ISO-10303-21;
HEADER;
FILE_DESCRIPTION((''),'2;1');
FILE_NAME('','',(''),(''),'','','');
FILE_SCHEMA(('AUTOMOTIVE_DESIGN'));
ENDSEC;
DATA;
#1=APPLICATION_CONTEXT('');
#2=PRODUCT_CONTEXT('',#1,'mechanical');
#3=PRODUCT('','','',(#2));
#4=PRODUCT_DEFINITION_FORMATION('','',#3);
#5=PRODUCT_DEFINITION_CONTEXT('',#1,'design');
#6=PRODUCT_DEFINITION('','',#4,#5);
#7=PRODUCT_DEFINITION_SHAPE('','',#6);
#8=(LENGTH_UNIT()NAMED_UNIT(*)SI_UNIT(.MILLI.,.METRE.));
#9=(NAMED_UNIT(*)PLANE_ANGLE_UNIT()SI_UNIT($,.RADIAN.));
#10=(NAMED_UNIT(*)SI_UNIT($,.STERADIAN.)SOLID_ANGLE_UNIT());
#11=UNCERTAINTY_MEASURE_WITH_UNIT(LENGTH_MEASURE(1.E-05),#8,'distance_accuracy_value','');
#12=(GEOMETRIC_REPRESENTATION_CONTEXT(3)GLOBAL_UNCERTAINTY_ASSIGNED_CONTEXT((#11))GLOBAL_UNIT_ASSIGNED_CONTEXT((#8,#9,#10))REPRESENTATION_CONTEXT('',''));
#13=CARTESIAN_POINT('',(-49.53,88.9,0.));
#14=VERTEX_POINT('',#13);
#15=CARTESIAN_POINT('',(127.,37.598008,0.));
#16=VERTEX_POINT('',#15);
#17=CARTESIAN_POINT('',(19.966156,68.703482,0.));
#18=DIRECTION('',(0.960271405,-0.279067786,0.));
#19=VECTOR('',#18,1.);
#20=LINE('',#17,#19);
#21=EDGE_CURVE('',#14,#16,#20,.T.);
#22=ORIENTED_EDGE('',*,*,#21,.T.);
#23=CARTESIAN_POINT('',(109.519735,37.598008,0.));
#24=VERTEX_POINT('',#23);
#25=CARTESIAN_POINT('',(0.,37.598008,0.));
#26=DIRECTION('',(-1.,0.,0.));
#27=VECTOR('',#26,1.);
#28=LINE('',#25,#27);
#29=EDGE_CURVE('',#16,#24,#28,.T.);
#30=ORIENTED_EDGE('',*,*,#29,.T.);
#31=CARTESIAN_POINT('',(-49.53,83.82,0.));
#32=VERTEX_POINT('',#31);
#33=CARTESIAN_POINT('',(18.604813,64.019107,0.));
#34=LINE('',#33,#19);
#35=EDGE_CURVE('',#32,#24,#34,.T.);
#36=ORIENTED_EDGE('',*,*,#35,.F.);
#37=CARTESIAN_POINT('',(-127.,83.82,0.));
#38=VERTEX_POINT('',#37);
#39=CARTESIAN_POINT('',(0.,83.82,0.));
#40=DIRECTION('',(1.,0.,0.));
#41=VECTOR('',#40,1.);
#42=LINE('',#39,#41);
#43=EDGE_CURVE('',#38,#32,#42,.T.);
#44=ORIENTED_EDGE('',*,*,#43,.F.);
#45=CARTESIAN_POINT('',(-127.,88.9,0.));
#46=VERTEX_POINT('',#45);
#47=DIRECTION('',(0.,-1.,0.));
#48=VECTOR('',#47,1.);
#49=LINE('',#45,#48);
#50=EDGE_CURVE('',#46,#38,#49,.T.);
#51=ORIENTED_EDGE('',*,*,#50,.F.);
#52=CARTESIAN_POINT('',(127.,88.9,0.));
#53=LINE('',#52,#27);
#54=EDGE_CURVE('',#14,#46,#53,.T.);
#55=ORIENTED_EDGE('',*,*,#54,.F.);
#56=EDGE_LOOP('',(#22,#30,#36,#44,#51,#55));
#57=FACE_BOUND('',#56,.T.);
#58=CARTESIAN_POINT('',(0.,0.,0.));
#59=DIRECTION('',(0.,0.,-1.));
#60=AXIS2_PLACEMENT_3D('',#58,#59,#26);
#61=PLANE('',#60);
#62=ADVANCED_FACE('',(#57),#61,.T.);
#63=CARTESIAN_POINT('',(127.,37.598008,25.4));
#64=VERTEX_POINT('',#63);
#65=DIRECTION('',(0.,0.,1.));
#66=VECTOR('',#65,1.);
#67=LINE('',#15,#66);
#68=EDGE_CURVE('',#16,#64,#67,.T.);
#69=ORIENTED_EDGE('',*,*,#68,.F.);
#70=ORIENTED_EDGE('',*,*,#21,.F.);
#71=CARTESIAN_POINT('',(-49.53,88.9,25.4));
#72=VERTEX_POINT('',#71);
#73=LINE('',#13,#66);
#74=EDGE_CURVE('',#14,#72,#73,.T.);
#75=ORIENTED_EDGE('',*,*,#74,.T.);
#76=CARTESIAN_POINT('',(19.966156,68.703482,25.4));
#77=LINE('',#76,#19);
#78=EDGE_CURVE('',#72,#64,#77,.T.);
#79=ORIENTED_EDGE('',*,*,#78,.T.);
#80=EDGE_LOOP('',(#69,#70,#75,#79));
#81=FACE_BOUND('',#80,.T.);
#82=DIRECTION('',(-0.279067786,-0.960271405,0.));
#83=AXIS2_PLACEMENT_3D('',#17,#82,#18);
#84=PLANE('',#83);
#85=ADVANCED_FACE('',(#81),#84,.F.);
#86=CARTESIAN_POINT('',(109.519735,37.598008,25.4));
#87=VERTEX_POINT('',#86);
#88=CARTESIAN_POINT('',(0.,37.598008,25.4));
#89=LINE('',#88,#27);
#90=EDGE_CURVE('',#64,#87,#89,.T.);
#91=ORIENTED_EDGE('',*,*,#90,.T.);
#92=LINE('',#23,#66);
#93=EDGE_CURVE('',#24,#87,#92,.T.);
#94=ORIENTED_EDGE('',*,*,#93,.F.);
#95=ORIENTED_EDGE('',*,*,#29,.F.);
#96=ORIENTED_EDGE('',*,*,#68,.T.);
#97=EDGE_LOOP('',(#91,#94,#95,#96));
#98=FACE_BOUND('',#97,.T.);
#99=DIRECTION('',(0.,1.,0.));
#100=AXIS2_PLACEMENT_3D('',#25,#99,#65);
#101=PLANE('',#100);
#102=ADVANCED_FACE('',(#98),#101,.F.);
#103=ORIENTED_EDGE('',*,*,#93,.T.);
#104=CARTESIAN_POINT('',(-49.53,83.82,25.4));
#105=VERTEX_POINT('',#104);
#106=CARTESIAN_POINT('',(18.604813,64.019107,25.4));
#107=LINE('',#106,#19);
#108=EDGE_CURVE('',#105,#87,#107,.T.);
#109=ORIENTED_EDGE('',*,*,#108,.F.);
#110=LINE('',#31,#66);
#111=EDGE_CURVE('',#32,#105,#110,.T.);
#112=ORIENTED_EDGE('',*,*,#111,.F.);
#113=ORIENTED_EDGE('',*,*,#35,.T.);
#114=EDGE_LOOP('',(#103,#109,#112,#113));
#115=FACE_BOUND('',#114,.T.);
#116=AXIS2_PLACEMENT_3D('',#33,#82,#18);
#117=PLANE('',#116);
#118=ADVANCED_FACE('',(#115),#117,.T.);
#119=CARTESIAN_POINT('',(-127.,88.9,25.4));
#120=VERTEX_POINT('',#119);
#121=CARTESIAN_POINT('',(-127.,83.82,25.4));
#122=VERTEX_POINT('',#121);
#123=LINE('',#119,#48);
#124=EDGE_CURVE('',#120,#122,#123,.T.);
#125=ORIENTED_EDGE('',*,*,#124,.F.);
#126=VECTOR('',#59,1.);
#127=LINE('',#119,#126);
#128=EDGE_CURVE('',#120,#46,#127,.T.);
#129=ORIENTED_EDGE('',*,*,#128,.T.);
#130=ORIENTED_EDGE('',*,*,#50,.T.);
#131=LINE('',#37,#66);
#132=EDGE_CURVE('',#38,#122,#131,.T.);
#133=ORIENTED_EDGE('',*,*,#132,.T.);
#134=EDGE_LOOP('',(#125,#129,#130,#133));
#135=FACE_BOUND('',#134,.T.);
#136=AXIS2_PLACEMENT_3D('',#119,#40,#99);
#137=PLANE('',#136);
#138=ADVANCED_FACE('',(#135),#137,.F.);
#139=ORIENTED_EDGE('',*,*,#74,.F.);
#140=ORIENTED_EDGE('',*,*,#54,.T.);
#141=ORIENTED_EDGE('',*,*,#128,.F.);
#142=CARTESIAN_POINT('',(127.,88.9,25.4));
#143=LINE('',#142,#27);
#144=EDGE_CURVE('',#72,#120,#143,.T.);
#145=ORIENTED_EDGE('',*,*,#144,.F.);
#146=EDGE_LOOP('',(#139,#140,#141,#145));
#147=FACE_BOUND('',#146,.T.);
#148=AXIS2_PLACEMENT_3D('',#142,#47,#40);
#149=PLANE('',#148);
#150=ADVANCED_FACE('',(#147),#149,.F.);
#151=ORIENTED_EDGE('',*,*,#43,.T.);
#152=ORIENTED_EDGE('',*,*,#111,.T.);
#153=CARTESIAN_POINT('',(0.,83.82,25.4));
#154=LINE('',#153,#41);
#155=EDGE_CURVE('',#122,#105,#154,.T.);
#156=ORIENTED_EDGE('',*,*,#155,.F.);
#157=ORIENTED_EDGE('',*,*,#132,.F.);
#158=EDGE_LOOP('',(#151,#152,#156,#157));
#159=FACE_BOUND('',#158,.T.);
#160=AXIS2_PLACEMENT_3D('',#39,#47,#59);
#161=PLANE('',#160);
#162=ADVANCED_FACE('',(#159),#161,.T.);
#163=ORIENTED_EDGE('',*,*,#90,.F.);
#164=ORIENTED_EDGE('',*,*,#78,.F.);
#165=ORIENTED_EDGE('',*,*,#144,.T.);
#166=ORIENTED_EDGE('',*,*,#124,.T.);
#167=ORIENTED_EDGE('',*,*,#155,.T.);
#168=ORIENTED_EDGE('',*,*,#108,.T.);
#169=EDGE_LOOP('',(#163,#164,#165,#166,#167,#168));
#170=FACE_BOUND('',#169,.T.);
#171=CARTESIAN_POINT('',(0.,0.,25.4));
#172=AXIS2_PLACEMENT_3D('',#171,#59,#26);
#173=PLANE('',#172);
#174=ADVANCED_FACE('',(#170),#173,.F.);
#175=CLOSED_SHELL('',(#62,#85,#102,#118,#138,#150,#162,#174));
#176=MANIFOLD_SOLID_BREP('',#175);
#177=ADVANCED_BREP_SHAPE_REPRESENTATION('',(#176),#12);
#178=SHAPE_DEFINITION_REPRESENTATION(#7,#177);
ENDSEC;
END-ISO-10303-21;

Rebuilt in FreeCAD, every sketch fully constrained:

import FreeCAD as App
import Part
import Sketcher

V = App.Vector
Q = App.Units.Quantity


def add_polygon(sketch, points):
    """Adds a closed chain of lines whose ends are joined by coincident constraints."""
    first, n = sketch.GeometryCount, len(points)
    for a, b in zip(points, points[1:] + points[:1]):
        sketch.addGeometry(Part.LineSegment(App.Vector(*a, 0), App.Vector(*b, 0)), False)
    for i in range(n):
        sketch.addConstraint(Sketcher.Constraint("Coincident", first + i, 2, first + (i + 1) % n, 1))

doc = App.newDocument("Part")
body = doc.addObject("PartDesign::Body", "Body")

# Sketch on XY plane
sketch1 = body.newObject("Sketcher::SketchObject", "Sketch")
sketch1.AttachmentSupport = (doc.getObject("XY_Plane"), [""])
sketch1.MapMode = "FlatFace"
add_polygon(sketch1, [(-127, 89), (-127, -89), (127, -89), (127, 89)])  # lines 0-3
sketch1.addConstraint([
    Sketcher.Constraint("Vertical", 0),
    Sketcher.Constraint("Horizontal", 1),
    Sketcher.Constraint("Vertical", 2),
    Sketcher.Constraint("Horizontal", 3),
    Sketcher.Constraint("Symmetric", 0, 2, 2, 2, -1, 1),
    Sketcher.Constraint("DistanceX", 1, 1, 1, 2, Q("10 in")),
    Sketcher.Constraint("DistanceY", 0, 2, 0, 1, Q("7 in")),
])
pad1 = body.newObject("PartDesign::Pad", "Pad")
pad1.Profile = sketch1
pad1.Length = Q("1 in")

# Sketch on XY plane
sketch2 = body.newObject("Sketcher::SketchObject", "Sketch001")
sketch2.AttachmentSupport = (doc.getObject("XY_Plane"), [""])
sketch2.MapMode = "FlatFace"
sketch2.AttachmentOffset = App.Placement(V(0, 0, 1 * 25.4), App.Rotation())
add_polygon(sketch2, [(127, 89), (-50, 89), (127, 38)])  # lines 0-2
add_polygon(sketch2, [(-50, 84), (-127, 84), (-127, -89), (127, -89), (127, 38), (110, 38)])  # lines 3-8
sketch2.addConstraint([
    Sketcher.Constraint("Horizontal", 0),
    Sketcher.Constraint("Vertical", 2),
    Sketcher.Constraint("Horizontal", 3),
    Sketcher.Constraint("Vertical", 4),
    Sketcher.Constraint("Horizontal", 5),
    Sketcher.Constraint("Vertical", 6),
    Sketcher.Constraint("Horizontal", 7),
    Sketcher.Constraint("Coincident", 6, 2, 1, 2),
    Sketcher.Constraint("Symmetric", 2, 2, 4, 2, -1, 1),
    Sketcher.Constraint("Parallel", 1, 8),
    Sketcher.Constraint("Vertical", 0, 2, 8, 2),
    Sketcher.Constraint("DistanceX", 5, 1, 5, 2, Q("10 in")),
    Sketcher.Constraint("DistanceY", 4, 2, 4, 1, Q("6.8 in")),
    Sketcher.Constraint("DistanceY", 4, 2, 0, 2, Q("7 in")),
    Sketcher.Constraint("DistanceX", 0, 2, 0, 1, Q("6.95 in")),
    Sketcher.Constraint("Distance", 8, 165.629982),
])
pocket1 = body.newObject("PartDesign::Pocket", "Pocket")
pocket1.Profile = sketch2
pocket1.Type = "ThroughAll"

doc.recompute()
